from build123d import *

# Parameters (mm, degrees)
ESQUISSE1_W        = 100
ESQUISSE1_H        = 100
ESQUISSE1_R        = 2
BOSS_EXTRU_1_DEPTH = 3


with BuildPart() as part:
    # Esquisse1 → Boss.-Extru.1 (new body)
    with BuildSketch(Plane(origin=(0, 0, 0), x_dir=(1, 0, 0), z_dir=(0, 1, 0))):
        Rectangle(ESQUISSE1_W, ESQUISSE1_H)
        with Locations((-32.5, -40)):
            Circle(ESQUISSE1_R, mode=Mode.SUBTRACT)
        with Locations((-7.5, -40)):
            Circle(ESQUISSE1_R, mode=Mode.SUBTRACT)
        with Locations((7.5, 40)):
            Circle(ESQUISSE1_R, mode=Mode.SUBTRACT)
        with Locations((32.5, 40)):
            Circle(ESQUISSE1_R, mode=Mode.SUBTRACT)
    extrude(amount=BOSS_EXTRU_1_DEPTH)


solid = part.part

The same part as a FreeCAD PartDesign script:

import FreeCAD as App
import Part
import Sketcher

V = App.Vector

doc = App.newDocument("Part")
params = doc.addObject("Spreadsheet::Sheet", "Params")
for row, (alias, value) in enumerate([
    ("sketch1_diameter", "4 mm"),
    ("sketch1_width", "100 mm"),
    ("pad1_length", "3 mm"),
], start=1):
    params.set(f"A{row}", alias)
    params.set(f"B{row}", "=" + value)
    params.setAlias(f"B{row}", alias)

body = doc.addObject("PartDesign::Body", "Body")

# Sketch on XZ plane
sketch1 = doc.addObject("Sketcher::SketchObject", "Sketch")
body.addObject(sketch1)
sketch1.AttachmentSupport = (doc.XZ_Plane, [""])
sketch1.MapMode = "FlatFace"
sketch1.addGeometry(Part.LineSegment(V(-50, -50, 0), V(-50, 50, 0)), False)
sketch1.addGeometry(Part.LineSegment(V(-50, 50, 0), V(50, 50, 0)), False)
sketch1.addGeometry(Part.LineSegment(V(50, 50, 0), V(50, -50, 0)), False)
sketch1.addGeometry(Part.LineSegment(V(50, -50, 0), V(-50, -50, 0)), False)
sketch1.addGeometry(Part.Circle(V(-32.5, 40, 0), V(0, 0, 1), 2), False)
sketch1.addGeometry(Part.Circle(V(-7.5, 40, 0), V(0, 0, 1), 2), False)
sketch1.addGeometry(Part.Circle(V(7.5, -40, 0), V(0, 0, 1), 2), False)
sketch1.addGeometry(Part.Circle(V(32.5, -40, 0), V(0, 0, 1), 2), False)
sketch1.addConstraint(Sketcher.Constraint("Coincident", 0, 2, 1, 1))
sketch1.addConstraint(Sketcher.Constraint("Coincident", 1, 2, 2, 1))
sketch1.addConstraint(Sketcher.Constraint("Coincident", 2, 2, 3, 1))
sketch1.addConstraint(Sketcher.Constraint("Coincident", 3, 2, 0, 1))
sketch1.addConstraint(Sketcher.Constraint("Vertical", 0))
sketch1.addConstraint(Sketcher.Constraint("Horizontal", 1))
sketch1.addConstraint(Sketcher.Constraint("Vertical", 2))
sketch1.addConstraint(Sketcher.Constraint("Horizontal", 3))
sketch1.addConstraint(Sketcher.Constraint("Equal", 4, 5))
sketch1.addConstraint(Sketcher.Constraint("Equal", 5, 6))
sketch1.addConstraint(Sketcher.Constraint("Equal", 6, 7))
sketch1.addConstraint(Sketcher.Constraint("Symmetric", 5, 3, 6, 3, -1, 1))
sketch1.addConstraint(Sketcher.Constraint("Symmetric", 4, 3, 7, 3, -1, 1))
sketch1.addConstraint(Sketcher.Constraint("Symmetric", 0, 2, 2, 2, -1, 1))
sketch1.addConstraint(Sketcher.Constraint("Horizontal", 4, 3, 5, 3))
sketch1.addConstraint(Sketcher.Constraint("Equal", 3, 0))
sketch1.addConstraint(Sketcher.Constraint("Diameter", 4, 4.0))
sketch1.addConstraint(Sketcher.Constraint("DistanceX", 1, 1, 1, 2, 100.0))
sketch1.addConstraint(Sketcher.Constraint("DistanceY", -1, 1, 4, 3, 40.0))
sketch1.addConstraint(Sketcher.Constraint("DistanceX", 4, 3, 5, 3, 25.0))
sketch1.addConstraint(Sketcher.Constraint("DistanceX", 5, 3, 6, 3, 15.0))
sketch1.setExpression("Constraints[16]", "Params.sketch1_diameter")
sketch1.setExpression("Constraints[17]", "Params.sketch1_width")
pad1 = doc.addObject("PartDesign::Pad", "Pad")
body.addObject(pad1)
pad1.Profile = sketch1
pad1.setExpression("Length", "Params.pad1_length")
pad1.Reversed = True

doc.recompute()
